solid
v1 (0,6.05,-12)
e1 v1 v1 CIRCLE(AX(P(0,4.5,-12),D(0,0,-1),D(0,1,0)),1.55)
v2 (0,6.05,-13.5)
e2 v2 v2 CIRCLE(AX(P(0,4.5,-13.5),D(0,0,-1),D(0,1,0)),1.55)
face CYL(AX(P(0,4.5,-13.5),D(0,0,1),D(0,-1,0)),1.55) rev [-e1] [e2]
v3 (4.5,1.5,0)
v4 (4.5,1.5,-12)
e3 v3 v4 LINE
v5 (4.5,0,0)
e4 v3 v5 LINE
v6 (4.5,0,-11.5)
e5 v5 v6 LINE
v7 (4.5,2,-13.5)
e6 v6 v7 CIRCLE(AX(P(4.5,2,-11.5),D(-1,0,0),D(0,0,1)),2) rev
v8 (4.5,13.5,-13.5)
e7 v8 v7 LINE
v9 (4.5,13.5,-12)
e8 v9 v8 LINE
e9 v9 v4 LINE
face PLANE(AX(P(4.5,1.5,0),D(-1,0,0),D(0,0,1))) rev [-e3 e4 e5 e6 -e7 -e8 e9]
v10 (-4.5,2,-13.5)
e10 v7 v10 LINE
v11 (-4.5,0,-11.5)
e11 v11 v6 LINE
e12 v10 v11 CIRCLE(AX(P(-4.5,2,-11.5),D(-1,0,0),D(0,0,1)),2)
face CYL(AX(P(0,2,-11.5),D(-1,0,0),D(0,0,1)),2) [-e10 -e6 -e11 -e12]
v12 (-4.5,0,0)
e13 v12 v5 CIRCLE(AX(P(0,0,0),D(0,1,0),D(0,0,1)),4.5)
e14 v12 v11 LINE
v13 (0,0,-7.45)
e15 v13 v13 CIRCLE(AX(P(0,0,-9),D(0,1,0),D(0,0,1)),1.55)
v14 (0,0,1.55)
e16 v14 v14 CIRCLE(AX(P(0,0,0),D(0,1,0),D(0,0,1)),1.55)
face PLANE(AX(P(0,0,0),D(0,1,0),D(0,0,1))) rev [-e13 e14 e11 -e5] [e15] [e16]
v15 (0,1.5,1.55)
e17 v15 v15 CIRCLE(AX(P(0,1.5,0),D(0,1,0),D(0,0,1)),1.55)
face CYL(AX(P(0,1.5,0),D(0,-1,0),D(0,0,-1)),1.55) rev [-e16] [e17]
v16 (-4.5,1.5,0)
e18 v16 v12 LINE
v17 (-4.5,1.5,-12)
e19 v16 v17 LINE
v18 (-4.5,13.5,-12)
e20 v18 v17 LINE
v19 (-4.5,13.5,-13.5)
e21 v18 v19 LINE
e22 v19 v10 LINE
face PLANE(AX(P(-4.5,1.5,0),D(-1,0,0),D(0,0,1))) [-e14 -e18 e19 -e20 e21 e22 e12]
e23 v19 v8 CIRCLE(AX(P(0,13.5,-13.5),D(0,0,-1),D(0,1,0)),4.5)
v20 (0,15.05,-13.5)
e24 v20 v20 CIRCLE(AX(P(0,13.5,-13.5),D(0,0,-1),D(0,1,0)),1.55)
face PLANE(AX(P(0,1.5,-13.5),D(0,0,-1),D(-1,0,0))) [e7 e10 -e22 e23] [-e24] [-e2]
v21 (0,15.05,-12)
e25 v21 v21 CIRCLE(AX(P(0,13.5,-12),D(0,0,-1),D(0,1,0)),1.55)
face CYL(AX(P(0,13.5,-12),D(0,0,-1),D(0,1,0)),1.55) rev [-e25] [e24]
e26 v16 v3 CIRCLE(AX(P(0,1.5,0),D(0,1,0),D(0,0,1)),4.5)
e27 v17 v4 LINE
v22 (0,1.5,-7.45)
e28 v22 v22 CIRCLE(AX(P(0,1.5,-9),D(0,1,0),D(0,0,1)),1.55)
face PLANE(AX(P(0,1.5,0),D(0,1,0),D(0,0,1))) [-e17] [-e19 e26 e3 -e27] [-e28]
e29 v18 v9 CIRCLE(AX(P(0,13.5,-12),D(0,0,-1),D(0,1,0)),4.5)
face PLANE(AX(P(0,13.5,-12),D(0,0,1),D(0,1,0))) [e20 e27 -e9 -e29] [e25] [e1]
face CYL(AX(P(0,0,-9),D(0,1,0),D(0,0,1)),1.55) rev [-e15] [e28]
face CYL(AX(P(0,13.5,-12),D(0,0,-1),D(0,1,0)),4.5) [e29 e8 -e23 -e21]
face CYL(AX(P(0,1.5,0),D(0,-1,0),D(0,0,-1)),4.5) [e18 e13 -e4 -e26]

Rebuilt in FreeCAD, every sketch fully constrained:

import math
import FreeCAD as App
import Part
import Sketcher

V = App.Vector
Q = App.Units.Quantity


def edges_at(feature, points):
    """Names of the edges that pass closest to the given points."""
    edges = feature.Shape.Edges
    near = lambda p: min(range(len(edges)), key=lambda i: edges[i].distToShape(Part.Vertex(*p))[0])
    return sorted({f"Edge{near(p) + 1}" for p in points})

doc = App.newDocument("Part")
params = doc.addObject("Spreadsheet::Sheet", "Params")
for row, (alias, value) in enumerate([
    ("sketch1_diameter", "3.1 mm"),
    ("sketch1_radius", "4.5 mm"),
    ("sketch1_height", "13.5 mm"),
    ("pad1_length", "1.5 mm"),
    ("sketch2_diameter", "3.1 mm"),
    ("pocket1_length", "1.5 mm"),
    ("fillet_radius", "2 mm"),
], start=1):
    params.set(f"A{row}", alias)
    params.set(f"B{row}", "=" + value)
    params.setAlias(f"B{row}", alias)

body = doc.addObject("PartDesign::Body", "Body")

sketch1 = body.newObject("Sketcher::SketchObject", "Sketch")
sketch1.AttachmentSupport = (doc.getObject("XZ_Plane"), [""])
sketch1.MapMode = "FlatFace"
sketch1.addGeometry([
    Part.LineSegment(V(-4.5, -13.5, 0), V(-4.5, 0, 0)),
    Part.ArcOfCircle(Part.Circle(V(0, 0, 0), V(0, 0, 1), 4.5), math.radians(0), math.radians(180)),
    Part.LineSegment(V(4.5, 0, 0), V(4.5, -13.5, 0)),
    Part.LineSegment(V(4.5, -13.5, 0), V(-4.5, -13.5, 0)),
    Part.Circle(V(0, 0, 0), V(0, 0, 1), 1.6),
], False)
sketch1.addConstraint([
    Sketcher.Constraint("Tangent", 0, 2, 1, 2),
    Sketcher.Constraint("Tangent", 1, 1, 2, 1),
    Sketcher.Constraint("Coincident", 2, 2, 3, 1),
    Sketcher.Constraint("Coincident", 3, 2, 0, 1),
    Sketcher.Constraint("Vertical", 0),
    Sketcher.Constraint("Vertical", 2),
    Sketcher.Constraint("Horizontal", 3),
    Sketcher.Constraint("Coincident", 1, 3, -1, 1),
    Sketcher.Constraint("Coincident", 4, 3, -1, 1),
    Sketcher.Constraint("Diameter", 4, Q("3.1 mm")),
    Sketcher.Constraint("Radius", 1, Q("4.5 mm")),
    Sketcher.Constraint("DistanceY", 0, 1, 0, 2, Q("13.5 mm")),
])
sketch1.setExpression("Constraints[9]", "Params.sketch1_diameter")
sketch1.setExpression("Constraints[10]", "Params.sketch1_radius")
sketch1.setExpression("Constraints[11]", "Params.sketch1_height")
pad1 = body.newObject("PartDesign::Pad", "Pad")
pad1.Profile = sketch1
pad1.setExpression("Length", "Params.pad1_length")
pad1.Reversed = True

sketch2 = body.newObject("Sketcher::SketchObject", "Sketch001")
sketch2.AttachmentSupport = (doc.getObject("XZ_Plane"), [""])
sketch2.MapMode = "FlatFace"
sketch2.AttachmentOffset = App.Placement(V(0, 0, -1.5), App.Rotation())
sketch2.addGeometry(Part.Circle(V(0, -9, 0), V(0, 0, 1), 1.6), False)
sketch2.addConstraint([
    Sketcher.Constraint("PointOnObject", 0, 3, -2),
    Sketcher.Constraint("Diameter", 0, Q("3.1 mm")),
    Sketcher.Constraint("DistanceY", 0, 3, -1, 1, Q("9 mm")),
])
sketch2.setExpression("Constraints[1]", "Params.sketch2_diameter")
pocket1 = body.newObject("PartDesign::Pocket", "Pocket")
pocket1.Profile = sketch2
pocket1.setExpression("Length", "Params.pocket1_length")
pocket1.Reversed = True
doc.recompute()

datumplane = body.newObject("PartDesign::Plane", "DatumPlane")
datumplane.Placement = App.Placement(V(0, 6.75, -6.75), App.Rotation(V(0, -0.707106781, -0.707106781), V(-1, 0, 0), V(0, 0.707106781, -0.707106781), "ZXY"))
mirrored = body.newObject("PartDesign::Mirrored", "Mirrored")
mirrored.Originals = [pad1, pocket1]
mirrored.MirrorPlane = (datumplane, [""])
body.Tip = mirrored
doc.recompute()

fillet = body.newObject("PartDesign::Fillet", "Fillet")
fillet.Base = (mirrored, edges_at(mirrored, [(0, 0, -13.5)]))
fillet.setExpression("Radius", "Params.fillet_radius")

doc.recompute()
